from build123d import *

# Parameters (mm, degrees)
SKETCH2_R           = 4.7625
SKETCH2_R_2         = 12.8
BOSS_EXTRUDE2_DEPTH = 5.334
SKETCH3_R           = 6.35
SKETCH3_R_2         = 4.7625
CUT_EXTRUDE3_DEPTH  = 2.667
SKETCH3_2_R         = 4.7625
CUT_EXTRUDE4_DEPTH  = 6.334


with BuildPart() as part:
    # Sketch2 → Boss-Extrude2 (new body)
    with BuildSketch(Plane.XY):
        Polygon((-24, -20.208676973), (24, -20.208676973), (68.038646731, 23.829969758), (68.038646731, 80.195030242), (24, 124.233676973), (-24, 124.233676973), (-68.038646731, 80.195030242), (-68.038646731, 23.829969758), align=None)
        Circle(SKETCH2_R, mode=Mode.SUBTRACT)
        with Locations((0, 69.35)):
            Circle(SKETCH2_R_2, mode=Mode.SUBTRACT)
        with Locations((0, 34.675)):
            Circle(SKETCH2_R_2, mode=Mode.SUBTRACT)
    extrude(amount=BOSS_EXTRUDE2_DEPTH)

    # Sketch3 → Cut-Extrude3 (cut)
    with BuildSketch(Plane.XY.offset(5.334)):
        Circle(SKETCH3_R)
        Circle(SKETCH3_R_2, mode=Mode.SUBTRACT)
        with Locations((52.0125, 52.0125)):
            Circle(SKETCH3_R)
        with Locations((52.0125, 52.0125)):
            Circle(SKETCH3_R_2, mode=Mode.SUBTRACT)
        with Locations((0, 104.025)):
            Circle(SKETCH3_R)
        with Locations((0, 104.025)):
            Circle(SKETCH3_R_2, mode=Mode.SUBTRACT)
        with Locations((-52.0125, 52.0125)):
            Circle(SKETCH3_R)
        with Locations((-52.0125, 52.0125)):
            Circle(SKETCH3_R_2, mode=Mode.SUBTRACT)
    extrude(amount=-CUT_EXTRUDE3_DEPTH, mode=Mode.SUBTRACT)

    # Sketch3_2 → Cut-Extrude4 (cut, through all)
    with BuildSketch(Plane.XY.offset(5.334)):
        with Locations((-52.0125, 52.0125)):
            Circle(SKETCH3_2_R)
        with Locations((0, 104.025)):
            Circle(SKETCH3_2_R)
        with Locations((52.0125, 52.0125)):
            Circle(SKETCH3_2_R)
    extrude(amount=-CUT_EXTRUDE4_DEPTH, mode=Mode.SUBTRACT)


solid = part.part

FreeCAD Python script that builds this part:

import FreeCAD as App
import Part
import Sketcher
from FreeCAD import Vector
Q = App.Units.Quantity

doc = App.newDocument("Part")
body = doc.addObject("PartDesign::Body", "Body")

# Sketch on XY plane
sketch1 = doc.addObject("Sketcher::SketchObject", "Sketch")
body.addObject(sketch1)
sketch1.AttachmentSupport = (doc.XY_Plane, [""])
sketch1.MapMode = "FlatFace"
sketch1.addGeometry([
    Part.LineSegment(Vector(-24, -20.208677, 0), Vector(24, -20.208677, 0)),  # 0
    Part.LineSegment(Vector(24, -20.208677, 0), Vector(68.038647, 23.82997, 0)),  # 1
    Part.LineSegment(Vector(68.038647, 23.82997, 0), Vector(68.038647, 80.19503, 0)),  # 2
    Part.LineSegment(Vector(68.038647, 80.19503, 0), Vector(24, 124.233677, 0)),  # 3
    Part.LineSegment(Vector(24, 124.233677, 0), Vector(-24, 124.233677, 0)),  # 4
    Part.LineSegment(Vector(-24, 124.233677, 0), Vector(-68.038647, 80.19503, 0)),  # 5
    Part.LineSegment(Vector(-68.038647, 80.19503, 0), Vector(-68.038647, 23.82997, 0)),  # 6
    Part.LineSegment(Vector(-68.038647, 23.82997, 0), Vector(-24, -20.208677, 0)),  # 7
    Part.Circle(Vector(0, 0, 0), Vector(0, 0, 1), 4.7625),  # 8
    Part.Circle(Vector(0, 34.675, 0), Vector(0, 0, 1), 12.8),  # 9
    Part.Circle(Vector(0, 69.35, 0), Vector(0, 0, 1), 12.8),  # 10
], False)
sketch1.addConstraint([
    Sketcher.Constraint("Coincident", 0, 2, 1, 1),
    Sketcher.Constraint("Coincident", 1, 2, 2, 1),
    Sketcher.Constraint("Coincident", 2, 2, 3, 1),
    Sketcher.Constraint("Coincident", 3, 2, 4, 1),
    Sketcher.Constraint("Coincident", 4, 2, 5, 1),
    Sketcher.Constraint("Coincident", 5, 2, 6, 1),
    Sketcher.Constraint("Coincident", 6, 2, 7, 1),
    Sketcher.Constraint("Coincident", 7, 2, 0, 1),
    Sketcher.Constraint("Horizontal", 0),
    Sketcher.Constraint("Vertical", 2),
    Sketcher.Constraint("Horizontal", 4),
    Sketcher.Constraint("Vertical", 6),
    Sketcher.Constraint("Coincident", 8, 3, -1, 1),
    Sketcher.Constraint("Equal", 9, 10),
    Sketcher.Constraint("Symmetric", 2, 2, 5, 2, -2),
    Sketcher.Constraint("PointOnObject", 9, 3, -2),
    Sketcher.Constraint("PointOnObject", 10, 3, -2),
    Sketcher.Constraint("Perpendicular", 1, 3),
    Sketcher.Constraint("Perpendicular", 3, 5),
    Sketcher.Constraint("Perpendicular", 5, 7),
    Sketcher.Constraint("Horizontal", 1, 2, 6, 2),
    Sketcher.Constraint("Vertical", 0, 2, 3, 2),
    Sketcher.Constraint("Vertical", 4, 2, 7, 2),
    Sketcher.Constraint("Diameter", 8, Q("0.375 in")),
    Sketcher.Constraint("Diameter", 9, Q("25.6 mm")),
    Sketcher.Constraint("DistanceX", 0, 1, 0, 2, Q("48 mm")),
    Sketcher.Constraint("DistanceY", 2, 1, 2, 2, Q("56.36506 mm")),
    Sketcher.Constraint("DistanceY", -1, 1, 9, 3, Q("34.675 mm")),
    Sketcher.Constraint("DistanceY", -1, 1, 10, 3, Q("69.35 mm")),
    Sketcher.Constraint("Distance", 1, Q("62.280051 mm")),
    Sketcher.Constraint("DistanceY", -1, 1, 1, 2, Q("23.82997 mm")),
])
pad1 = doc.addObject("PartDesign::Pad", "Pad")
body.addObject(pad1)
pad1.Profile = sketch1
pad1.Length = Q("0.21 in")

# Sketch on XY plane
sketch2 = doc.addObject("Sketcher::SketchObject", "Sketch001")
body.addObject(sketch2)
sketch2.AttachmentSupport = (doc.XY_Plane, [""])
sketch2.MapMode = "FlatFace"
sketch2.AttachmentOffset = App.Placement(Vector(0, 0, 0.21 * 25.4), App.Rotation())
sketch2.addGeometry([
    Part.Circle(Vector(0, 0, 0), Vector(0, 0, 1), 6.35),  # 0
    Part.Circle(Vector(0, 0, 0), Vector(0, 0, 1), 4.7625),  # 1
    Part.Circle(Vector(52.0125, 52.0125, 0), Vector(0, 0, 1), 6.35),  # 2
    Part.Circle(Vector(52.0125, 52.0125, 0), Vector(0, 0, 1), 4.7625),  # 3
    Part.Circle(Vector(0, 104.025, 0), Vector(0, 0, 1), 6.35),  # 4
    Part.Circle(Vector(0, 104.025, 0), Vector(0, 0, 1), 4.7625),  # 5
    Part.Circle(Vector(-52.0125, 52.0125, 0), Vector(0, 0, 1), 6.35),  # 6
    Part.Circle(Vector(-52.0125, 52.0125, 0), Vector(0, 0, 1), 4.7625),  # 7
], False)
sketch2.addConstraint([
    Sketcher.Constraint("Coincident", 0, 3, -1, 1),
    Sketcher.Constraint("Coincident", 1, 3, -1, 1),
    Sketcher.Constraint("Coincident", 3, 3, 2, 3),
    Sketcher.Constraint("Coincident", 5, 3, 4, 3),
    Sketcher.Constraint("Coincident", 7, 3, 6, 3),
    Sketcher.Constraint("Equal", 0, 2),
    Sketcher.Constraint("Equal", 1, 3),
    Sketcher.Constraint("Equal", 2, 4),
    Sketcher.Constraint("Equal", 3, 5),
    Sketcher.Constraint("Equal", 4, 6),
    Sketcher.Constraint("Equal", 5, 7),
    Sketcher.Constraint("Symmetric", 2, 3, 6, 3, -2),
    Sketcher.Constraint("PointOnObject", 4, 3, -2),
    Sketcher.Constraint("Diameter", 0, Q("0.5 in")),
    Sketcher.Constraint("Diameter", 1, Q("0.375 in")),
    Sketcher.Constraint("DistanceX", -1, 1, 2, 3, Q("52.0125 mm")),
    Sketcher.Constraint("DistanceY", -1, 1, 2, 3, Q("52.0125 mm")),
    Sketcher.Constraint("DistanceY", -1, 1, 4, 3, Q("104.025 mm")),
])
pocket1 = doc.addObject("PartDesign::Pocket", "Pocket")
body.addObject(pocket1)
pocket1.Profile = sketch2
pocket1.Length = Q("0.105 in")

# Sketch on XY plane
sketch3 = doc.addObject("Sketcher::SketchObject", "Sketch002")
body.addObject(sketch3)
sketch3.AttachmentSupport = (doc.XY_Plane, [""])
sketch3.MapMode = "FlatFace"
sketch3.AttachmentOffset = App.Placement(Vector(0, 0, 0.21 * 25.4), App.Rotation())
sketch3.addGeometry([
    Part.Circle(Vector(-52.0125, 52.0125, 0), Vector(0, 0, 1), 4.7625),
    Part.Circle(Vector(0, 104.025, 0), Vector(0, 0, 1), 4.7625),
    Part.Circle(Vector(52.0125, 52.0125, 0), Vector(0, 0, 1), 4.7625),
], False)
sketch3.addConstraint([
    Sketcher.Constraint("Equal", 0, 1),
    Sketcher.Constraint("Equal", 1, 2),
    Sketcher.Constraint("Symmetric", 0, 3, 2, 3, -2),
    Sketcher.Constraint("PointOnObject", 1, 3, -2),
    Sketcher.Constraint("Diameter", 0, Q("0.375 in")),
    Sketcher.Constraint("DistanceX", 0, 3, -1, 1, Q("52.0125 mm")),
    Sketcher.Constraint("DistanceY", -1, 1, 0, 3, Q("52.0125 mm")),
    Sketcher.Constraint("DistanceY", -1, 1, 1, 3, Q("104.025 mm")),
])
pocket2 = doc.addObject("PartDesign::Pocket", "Pocket001")
body.addObject(pocket2)
pocket2.Profile = sketch3
pocket2.Type = "ThroughAll"

doc.recompute()
